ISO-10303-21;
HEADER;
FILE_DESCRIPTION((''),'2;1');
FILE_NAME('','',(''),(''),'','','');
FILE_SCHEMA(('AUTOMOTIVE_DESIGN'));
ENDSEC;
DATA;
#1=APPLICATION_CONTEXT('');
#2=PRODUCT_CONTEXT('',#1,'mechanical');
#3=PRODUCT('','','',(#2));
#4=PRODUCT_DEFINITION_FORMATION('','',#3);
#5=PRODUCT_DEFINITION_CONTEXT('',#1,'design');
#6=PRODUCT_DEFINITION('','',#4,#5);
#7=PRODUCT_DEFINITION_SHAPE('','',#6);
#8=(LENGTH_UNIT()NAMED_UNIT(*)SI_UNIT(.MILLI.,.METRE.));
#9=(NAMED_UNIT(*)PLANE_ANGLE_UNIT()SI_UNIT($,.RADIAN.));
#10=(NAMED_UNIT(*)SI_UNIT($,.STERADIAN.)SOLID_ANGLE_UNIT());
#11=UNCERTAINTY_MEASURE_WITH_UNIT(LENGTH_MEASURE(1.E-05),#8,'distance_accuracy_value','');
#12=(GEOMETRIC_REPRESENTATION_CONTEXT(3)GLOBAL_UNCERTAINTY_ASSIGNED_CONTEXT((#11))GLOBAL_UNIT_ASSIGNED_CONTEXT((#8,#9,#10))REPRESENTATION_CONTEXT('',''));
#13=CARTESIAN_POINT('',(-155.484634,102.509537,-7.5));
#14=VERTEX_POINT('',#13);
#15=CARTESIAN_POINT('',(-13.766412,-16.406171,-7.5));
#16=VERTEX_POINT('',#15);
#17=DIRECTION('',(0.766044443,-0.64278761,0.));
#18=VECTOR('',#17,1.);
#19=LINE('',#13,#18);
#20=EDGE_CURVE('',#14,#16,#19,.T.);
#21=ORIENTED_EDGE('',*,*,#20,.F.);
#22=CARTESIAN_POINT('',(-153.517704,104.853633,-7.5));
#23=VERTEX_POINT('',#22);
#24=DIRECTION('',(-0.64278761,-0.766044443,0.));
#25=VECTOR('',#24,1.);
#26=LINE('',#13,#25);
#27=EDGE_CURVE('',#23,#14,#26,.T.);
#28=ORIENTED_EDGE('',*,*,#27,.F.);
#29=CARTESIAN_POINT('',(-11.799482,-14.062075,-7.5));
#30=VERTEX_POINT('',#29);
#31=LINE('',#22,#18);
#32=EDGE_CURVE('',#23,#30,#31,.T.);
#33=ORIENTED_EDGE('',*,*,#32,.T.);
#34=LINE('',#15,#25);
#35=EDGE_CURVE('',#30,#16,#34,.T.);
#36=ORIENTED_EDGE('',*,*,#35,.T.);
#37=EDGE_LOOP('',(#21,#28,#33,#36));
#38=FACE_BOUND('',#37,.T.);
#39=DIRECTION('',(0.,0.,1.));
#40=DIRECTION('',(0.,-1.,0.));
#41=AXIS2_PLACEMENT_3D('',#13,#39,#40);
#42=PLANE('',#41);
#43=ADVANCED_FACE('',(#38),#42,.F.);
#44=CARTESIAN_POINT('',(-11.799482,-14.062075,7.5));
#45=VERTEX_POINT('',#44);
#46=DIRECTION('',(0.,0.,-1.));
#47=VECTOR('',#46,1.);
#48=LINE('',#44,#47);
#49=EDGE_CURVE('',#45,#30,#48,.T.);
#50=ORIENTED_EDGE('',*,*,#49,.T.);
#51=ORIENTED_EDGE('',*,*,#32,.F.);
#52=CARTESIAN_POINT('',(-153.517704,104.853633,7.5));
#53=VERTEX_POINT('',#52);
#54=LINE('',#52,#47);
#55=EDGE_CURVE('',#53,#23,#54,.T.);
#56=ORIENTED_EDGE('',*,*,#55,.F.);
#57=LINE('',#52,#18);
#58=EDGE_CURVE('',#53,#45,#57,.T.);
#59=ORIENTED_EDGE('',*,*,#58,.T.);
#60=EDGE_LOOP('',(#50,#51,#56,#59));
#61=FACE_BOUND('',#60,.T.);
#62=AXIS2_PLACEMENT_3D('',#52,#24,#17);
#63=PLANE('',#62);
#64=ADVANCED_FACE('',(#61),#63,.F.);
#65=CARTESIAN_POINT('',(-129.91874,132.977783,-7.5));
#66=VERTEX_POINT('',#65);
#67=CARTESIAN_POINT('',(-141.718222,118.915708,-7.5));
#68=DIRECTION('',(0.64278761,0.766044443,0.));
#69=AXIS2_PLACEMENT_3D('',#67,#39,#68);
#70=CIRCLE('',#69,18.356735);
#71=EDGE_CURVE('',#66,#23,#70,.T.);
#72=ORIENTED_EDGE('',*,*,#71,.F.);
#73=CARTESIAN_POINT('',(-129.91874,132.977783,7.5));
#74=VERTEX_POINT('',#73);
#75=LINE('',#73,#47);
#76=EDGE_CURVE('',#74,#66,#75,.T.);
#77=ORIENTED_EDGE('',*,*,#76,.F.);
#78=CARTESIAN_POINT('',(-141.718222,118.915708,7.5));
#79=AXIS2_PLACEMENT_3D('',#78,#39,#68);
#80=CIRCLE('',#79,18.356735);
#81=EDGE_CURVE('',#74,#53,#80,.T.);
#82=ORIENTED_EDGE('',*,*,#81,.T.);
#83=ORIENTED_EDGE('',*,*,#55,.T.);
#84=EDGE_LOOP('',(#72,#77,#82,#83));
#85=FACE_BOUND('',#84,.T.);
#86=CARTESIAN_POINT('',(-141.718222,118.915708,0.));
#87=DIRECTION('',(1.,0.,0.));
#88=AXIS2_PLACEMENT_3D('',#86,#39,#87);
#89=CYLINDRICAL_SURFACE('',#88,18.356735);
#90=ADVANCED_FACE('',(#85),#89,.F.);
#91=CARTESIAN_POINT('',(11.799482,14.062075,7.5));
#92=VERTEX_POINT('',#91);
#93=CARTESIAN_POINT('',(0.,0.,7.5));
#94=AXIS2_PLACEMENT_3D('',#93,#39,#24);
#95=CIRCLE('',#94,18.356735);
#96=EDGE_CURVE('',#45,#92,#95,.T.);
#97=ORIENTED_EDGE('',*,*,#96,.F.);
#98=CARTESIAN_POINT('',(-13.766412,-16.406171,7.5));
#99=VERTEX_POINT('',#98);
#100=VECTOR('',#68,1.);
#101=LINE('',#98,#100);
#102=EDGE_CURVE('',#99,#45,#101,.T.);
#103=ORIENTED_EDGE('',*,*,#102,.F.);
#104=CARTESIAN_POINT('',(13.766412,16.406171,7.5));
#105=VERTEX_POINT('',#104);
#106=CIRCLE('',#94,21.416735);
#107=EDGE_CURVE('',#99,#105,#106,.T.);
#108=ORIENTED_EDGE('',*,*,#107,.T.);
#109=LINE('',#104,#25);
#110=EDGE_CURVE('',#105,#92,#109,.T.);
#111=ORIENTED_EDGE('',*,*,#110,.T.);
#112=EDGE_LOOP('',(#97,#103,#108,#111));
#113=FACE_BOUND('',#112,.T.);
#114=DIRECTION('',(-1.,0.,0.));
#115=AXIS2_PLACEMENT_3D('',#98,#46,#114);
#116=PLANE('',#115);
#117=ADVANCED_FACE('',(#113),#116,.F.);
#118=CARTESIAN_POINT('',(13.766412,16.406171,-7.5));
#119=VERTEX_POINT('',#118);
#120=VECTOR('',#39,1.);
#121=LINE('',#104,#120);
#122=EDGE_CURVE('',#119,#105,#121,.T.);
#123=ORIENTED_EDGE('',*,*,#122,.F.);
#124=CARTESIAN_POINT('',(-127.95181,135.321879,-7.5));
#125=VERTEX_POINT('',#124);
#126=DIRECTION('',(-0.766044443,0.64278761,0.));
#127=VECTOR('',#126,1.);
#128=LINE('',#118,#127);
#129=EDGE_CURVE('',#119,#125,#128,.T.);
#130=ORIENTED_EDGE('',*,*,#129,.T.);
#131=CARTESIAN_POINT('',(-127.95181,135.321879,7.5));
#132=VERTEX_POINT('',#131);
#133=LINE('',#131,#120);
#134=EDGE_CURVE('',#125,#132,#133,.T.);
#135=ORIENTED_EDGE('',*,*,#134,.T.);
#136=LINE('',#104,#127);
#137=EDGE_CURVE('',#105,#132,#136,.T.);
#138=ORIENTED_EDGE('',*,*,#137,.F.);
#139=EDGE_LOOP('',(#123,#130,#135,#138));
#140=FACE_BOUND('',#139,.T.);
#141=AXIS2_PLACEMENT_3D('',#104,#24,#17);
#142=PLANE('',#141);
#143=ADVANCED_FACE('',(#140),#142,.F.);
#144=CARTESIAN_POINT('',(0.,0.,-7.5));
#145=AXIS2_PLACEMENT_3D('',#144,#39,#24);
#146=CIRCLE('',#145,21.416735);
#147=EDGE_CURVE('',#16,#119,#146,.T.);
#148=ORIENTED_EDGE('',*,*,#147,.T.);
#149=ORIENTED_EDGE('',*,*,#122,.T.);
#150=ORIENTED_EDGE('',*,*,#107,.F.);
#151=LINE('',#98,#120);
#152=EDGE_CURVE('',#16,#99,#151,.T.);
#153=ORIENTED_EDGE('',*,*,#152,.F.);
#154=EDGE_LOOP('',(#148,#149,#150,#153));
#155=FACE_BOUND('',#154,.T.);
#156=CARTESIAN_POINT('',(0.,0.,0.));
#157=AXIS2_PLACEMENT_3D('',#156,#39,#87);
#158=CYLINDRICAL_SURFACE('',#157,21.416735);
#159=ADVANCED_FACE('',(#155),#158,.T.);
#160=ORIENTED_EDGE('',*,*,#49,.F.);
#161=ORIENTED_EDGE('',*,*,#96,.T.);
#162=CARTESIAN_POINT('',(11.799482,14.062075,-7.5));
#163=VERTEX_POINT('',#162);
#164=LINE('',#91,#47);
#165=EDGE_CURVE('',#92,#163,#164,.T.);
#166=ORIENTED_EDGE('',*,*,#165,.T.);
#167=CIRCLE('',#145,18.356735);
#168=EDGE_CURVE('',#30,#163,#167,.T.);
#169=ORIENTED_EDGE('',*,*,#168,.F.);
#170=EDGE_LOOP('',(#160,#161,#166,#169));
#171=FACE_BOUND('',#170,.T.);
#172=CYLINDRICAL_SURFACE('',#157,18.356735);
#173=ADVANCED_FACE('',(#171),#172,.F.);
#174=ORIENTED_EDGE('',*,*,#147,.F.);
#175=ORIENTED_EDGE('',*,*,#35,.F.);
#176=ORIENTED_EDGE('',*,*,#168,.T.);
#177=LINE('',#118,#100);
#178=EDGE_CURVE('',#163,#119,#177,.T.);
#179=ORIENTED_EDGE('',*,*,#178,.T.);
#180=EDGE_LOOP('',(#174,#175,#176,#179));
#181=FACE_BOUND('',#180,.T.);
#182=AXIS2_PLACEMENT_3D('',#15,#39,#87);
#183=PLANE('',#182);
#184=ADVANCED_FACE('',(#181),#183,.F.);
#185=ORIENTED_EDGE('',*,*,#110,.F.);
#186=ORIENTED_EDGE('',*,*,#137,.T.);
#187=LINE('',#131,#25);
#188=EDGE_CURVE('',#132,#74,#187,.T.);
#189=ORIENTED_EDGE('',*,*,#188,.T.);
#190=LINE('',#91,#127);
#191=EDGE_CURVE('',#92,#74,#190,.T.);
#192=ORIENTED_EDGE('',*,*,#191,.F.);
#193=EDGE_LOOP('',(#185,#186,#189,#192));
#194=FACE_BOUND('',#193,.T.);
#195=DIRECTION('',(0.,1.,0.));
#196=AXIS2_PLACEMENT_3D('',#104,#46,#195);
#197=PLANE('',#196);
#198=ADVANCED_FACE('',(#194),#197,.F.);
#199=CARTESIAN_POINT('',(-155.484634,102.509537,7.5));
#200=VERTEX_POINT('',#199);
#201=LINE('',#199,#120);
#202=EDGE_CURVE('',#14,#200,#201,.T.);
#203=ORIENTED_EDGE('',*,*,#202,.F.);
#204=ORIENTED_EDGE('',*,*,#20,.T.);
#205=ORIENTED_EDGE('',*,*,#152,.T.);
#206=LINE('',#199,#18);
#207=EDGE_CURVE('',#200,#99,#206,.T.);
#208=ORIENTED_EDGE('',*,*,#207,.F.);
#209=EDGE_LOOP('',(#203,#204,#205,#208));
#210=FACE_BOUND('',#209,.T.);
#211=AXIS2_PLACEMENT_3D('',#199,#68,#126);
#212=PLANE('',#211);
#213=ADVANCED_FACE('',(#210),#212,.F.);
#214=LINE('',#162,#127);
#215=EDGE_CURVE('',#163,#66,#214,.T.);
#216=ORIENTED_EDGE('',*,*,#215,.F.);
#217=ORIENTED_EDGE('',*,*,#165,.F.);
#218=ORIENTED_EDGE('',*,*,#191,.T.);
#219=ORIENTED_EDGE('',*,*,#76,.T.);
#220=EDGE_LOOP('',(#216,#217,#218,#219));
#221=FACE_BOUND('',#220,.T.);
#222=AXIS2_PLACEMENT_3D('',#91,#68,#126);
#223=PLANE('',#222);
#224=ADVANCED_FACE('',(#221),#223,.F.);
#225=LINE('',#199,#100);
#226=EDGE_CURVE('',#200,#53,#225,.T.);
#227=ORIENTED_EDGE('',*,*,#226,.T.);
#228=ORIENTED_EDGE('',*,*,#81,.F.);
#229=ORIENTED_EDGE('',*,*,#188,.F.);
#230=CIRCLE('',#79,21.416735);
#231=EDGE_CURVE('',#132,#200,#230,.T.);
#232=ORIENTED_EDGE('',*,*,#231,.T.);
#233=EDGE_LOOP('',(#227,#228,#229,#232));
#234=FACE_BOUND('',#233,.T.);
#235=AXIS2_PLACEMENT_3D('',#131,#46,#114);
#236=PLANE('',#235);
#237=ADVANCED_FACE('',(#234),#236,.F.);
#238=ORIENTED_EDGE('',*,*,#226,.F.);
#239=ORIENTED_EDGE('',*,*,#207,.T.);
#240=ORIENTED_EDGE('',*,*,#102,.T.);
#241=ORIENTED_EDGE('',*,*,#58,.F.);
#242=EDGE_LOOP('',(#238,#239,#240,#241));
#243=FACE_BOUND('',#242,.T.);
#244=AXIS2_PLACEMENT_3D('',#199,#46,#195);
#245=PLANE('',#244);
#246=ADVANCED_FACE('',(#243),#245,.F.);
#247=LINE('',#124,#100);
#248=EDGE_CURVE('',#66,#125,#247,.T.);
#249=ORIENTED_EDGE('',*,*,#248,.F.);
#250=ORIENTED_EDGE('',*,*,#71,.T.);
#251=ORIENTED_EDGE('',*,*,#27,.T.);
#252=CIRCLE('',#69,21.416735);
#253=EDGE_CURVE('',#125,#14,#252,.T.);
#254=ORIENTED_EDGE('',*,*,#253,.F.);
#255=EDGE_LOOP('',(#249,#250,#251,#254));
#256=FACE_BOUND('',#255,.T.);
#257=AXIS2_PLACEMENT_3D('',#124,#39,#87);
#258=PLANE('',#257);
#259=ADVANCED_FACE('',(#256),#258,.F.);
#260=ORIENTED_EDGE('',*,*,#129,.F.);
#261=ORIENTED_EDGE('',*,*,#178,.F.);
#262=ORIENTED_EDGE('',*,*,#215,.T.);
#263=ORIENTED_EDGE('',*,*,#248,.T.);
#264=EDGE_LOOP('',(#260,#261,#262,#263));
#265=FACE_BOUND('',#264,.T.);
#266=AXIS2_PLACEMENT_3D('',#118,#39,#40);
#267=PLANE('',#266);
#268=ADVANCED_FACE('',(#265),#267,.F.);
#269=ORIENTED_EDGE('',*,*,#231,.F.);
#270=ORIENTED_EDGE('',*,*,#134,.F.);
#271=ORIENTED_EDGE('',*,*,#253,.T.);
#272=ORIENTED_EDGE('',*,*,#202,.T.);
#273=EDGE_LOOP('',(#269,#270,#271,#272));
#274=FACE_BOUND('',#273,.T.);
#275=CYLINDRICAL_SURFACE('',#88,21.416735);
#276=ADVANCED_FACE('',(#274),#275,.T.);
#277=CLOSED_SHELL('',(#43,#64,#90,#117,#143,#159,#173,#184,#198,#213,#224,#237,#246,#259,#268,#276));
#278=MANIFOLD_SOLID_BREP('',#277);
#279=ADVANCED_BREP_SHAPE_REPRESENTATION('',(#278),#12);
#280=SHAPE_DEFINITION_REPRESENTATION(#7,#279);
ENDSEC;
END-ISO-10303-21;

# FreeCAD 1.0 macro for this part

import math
import FreeCAD as App
import Part
import Sketcher
Q = App.Units.Quantity


def add_polygon(sketch, points):
    """Adds a closed chain of lines whose ends are joined by coincident constraints."""
    first, n = sketch.GeometryCount, len(points)
    for a, b in zip(points, points[1:] + points[:1]):
        sketch.addGeometry(Part.LineSegment(App.Vector(*a, 0), App.Vector(*b, 0)), False)
    for i in range(n):
        sketch.addConstraint(Sketcher.Constraint("Coincident", first + i, 2, first + (i + 1) % n, 1))

doc = App.newDocument("Part")
body = doc.addObject("PartDesign::Body", "Body")

sketch1 = body.newObject("Sketcher::SketchObject", "Sketch")
sketch1.Placement = App.Placement(App.Vector(13.177146, 15.703911, 0), App.Rotation(App.Vector(0, 0, -1), App.Vector(0.64278761, 0.766044443, 0), App.Vector(0.766044443, -0.64278761, 0), "ZXY"))
add_polygon(sketch1, [(-7.5, 0.9), (-7.5, -2.1), (7.5, -2.1), (7.5, 0.9)])
sketch1.addConstraint(Sketcher.Constraint("Vertical", 0))
sketch1.addConstraint(Sketcher.Constraint("Horizontal", 1))
sketch1.addConstraint(Sketcher.Constraint("Vertical", 2))
sketch1.addConstraint(Sketcher.Constraint("Horizontal", 3))
sketch1.addConstraint(Sketcher.Constraint("DistanceX", 1, 1, 1, 2, Q("15 mm")))
sketch1.addConstraint(Sketcher.Constraint("DistanceY", 0, 2, 0, 1, Q("3.06 mm")))
sketch1.addConstraint(Sketcher.Constraint("DistanceX", 0, 2, -1, 1, Q("7.5 mm")))
sketch1.addConstraint(Sketcher.Constraint("DistanceY", 0, 2, -1, 1, Q("2.143265 mm")))

sketch2 = body.newObject("Sketcher::SketchObject", "Sketch001")
sketch2.AttachmentSupport = (doc.getObject("XY_Plane"), [""])
sketch2.MapMode = "FlatFace"
sketch2.addGeometry(Part.LineSegment(App.Vector(-13, -16, 0), App.Vector(-155, 103, 0)), False)
sketch2.addGeometry(Part.ArcOfCircle(Part.Circle(App.Vector(-142, 119, 0), App.Vector(0, 0, 1), 20), math.radians(50), math.radians(230)), False)
sketch2.addGeometry(Part.LineSegment(App.Vector(-129, 135, 0), App.Vector(13, 16, 0)), False)
sketch2.addGeometry(Part.ArcOfCircle(Part.Circle(App.Vector(0, 0, 0), App.Vector(0, 0, 1), 20), math.radians(-130), math.radians(50)), False)
sketch2.addConstraint(Sketcher.Constraint("Tangent", 0, 2, 1, 2))
sketch2.addConstraint(Sketcher.Constraint("Tangent", 1, 1, 2, 1))
sketch2.addConstraint(Sketcher.Constraint("Tangent", 2, 2, 3, 2))
sketch2.addConstraint(Sketcher.Constraint("Tangent", 3, 1, 0, 1))
sketch2.addConstraint(Sketcher.Constraint("Coincident", 3, 3, -1, 1))
sketch2.addConstraint(Sketcher.Constraint("Equal", 1, 3))
sketch2.addConstraint(Sketcher.Constraint("Radius", 1, Q("20.5 mm")))
sketch2.addConstraint(Sketcher.Constraint("Angle", 0, Q("140 deg")))
sketch2.addConstraint(Sketcher.Constraint("Distance", 0, Q("185 mm")))
doc.recompute()

additivepipe = body.newObject("PartDesign::AdditivePipe", "AdditivePipe")
additivepipe.Profile = sketch1
additivepipe.Spine = (sketch2, ["Edge1", "Edge2", "Edge3", "Edge4"])

doc.recompute()
